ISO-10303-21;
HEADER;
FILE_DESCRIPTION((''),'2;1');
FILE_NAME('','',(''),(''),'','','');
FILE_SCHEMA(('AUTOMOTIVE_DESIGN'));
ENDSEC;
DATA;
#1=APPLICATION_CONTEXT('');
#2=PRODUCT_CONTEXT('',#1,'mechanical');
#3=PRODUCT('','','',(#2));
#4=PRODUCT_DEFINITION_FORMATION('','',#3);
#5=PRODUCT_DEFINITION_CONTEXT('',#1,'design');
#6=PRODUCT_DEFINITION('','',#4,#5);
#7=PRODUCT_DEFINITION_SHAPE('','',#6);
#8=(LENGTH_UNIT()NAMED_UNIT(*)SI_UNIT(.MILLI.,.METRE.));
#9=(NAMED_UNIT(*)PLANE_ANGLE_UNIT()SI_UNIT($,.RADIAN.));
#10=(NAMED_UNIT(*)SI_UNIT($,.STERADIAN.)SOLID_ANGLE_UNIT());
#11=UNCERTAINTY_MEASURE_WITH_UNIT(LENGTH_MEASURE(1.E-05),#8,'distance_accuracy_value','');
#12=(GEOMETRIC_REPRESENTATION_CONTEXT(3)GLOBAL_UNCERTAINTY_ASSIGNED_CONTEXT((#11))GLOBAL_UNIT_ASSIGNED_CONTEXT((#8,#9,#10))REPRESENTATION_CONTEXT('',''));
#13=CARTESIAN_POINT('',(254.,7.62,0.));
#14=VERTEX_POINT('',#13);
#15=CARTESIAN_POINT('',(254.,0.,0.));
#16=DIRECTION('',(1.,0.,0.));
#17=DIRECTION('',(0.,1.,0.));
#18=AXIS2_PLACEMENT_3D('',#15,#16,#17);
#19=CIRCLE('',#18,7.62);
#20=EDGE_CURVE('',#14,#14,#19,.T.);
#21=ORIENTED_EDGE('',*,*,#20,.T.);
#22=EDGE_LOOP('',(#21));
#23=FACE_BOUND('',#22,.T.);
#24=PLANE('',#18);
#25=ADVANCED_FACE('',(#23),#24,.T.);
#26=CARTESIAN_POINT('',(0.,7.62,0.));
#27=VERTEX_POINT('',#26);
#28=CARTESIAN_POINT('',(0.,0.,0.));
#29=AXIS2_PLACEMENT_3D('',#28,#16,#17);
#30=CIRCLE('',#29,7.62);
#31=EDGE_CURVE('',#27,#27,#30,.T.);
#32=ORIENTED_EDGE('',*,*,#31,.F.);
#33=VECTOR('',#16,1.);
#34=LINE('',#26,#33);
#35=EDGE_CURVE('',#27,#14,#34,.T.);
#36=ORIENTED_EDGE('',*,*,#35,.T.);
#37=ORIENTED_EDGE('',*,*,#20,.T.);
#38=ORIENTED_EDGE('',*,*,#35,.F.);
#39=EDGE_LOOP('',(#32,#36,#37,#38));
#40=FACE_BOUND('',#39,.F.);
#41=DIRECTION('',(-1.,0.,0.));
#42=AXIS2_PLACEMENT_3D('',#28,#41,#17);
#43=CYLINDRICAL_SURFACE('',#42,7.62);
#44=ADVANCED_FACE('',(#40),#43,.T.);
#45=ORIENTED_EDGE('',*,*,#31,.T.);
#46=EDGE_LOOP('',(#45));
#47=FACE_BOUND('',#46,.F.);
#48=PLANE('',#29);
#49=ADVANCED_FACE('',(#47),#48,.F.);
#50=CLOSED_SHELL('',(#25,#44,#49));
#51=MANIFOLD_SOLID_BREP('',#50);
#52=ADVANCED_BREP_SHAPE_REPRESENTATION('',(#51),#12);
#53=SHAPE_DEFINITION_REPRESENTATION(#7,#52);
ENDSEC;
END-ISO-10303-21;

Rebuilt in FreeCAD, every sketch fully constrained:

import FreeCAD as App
import Part
import Sketcher
Q = App.Units.Quantity

doc = App.newDocument("Part")
body = doc.addObject("PartDesign::Body", "Body")

sketch1 = body.newObject("Sketcher::SketchObject", "Sketch")
sketch1.AttachmentSupport = (doc.getObject("YZ_Plane"), [""])
sketch1.MapMode = "FlatFace"
sketch1.addGeometry(Part.Circle(App.Vector(0, 0, 0), App.Vector(0, 0, 1), 7.62), False)
sketch1.addConstraint(Sketcher.Constraint("Coincident", 0, 3, -1, 1))
sketch1.addConstraint(Sketcher.Constraint("Diameter", 0, Q("0.6 in")))
pad1 = body.newObject("PartDesign::Pad", "Pad")
pad1.Profile = sketch1
pad1.Length = Q("10 in")

doc.recompute()
